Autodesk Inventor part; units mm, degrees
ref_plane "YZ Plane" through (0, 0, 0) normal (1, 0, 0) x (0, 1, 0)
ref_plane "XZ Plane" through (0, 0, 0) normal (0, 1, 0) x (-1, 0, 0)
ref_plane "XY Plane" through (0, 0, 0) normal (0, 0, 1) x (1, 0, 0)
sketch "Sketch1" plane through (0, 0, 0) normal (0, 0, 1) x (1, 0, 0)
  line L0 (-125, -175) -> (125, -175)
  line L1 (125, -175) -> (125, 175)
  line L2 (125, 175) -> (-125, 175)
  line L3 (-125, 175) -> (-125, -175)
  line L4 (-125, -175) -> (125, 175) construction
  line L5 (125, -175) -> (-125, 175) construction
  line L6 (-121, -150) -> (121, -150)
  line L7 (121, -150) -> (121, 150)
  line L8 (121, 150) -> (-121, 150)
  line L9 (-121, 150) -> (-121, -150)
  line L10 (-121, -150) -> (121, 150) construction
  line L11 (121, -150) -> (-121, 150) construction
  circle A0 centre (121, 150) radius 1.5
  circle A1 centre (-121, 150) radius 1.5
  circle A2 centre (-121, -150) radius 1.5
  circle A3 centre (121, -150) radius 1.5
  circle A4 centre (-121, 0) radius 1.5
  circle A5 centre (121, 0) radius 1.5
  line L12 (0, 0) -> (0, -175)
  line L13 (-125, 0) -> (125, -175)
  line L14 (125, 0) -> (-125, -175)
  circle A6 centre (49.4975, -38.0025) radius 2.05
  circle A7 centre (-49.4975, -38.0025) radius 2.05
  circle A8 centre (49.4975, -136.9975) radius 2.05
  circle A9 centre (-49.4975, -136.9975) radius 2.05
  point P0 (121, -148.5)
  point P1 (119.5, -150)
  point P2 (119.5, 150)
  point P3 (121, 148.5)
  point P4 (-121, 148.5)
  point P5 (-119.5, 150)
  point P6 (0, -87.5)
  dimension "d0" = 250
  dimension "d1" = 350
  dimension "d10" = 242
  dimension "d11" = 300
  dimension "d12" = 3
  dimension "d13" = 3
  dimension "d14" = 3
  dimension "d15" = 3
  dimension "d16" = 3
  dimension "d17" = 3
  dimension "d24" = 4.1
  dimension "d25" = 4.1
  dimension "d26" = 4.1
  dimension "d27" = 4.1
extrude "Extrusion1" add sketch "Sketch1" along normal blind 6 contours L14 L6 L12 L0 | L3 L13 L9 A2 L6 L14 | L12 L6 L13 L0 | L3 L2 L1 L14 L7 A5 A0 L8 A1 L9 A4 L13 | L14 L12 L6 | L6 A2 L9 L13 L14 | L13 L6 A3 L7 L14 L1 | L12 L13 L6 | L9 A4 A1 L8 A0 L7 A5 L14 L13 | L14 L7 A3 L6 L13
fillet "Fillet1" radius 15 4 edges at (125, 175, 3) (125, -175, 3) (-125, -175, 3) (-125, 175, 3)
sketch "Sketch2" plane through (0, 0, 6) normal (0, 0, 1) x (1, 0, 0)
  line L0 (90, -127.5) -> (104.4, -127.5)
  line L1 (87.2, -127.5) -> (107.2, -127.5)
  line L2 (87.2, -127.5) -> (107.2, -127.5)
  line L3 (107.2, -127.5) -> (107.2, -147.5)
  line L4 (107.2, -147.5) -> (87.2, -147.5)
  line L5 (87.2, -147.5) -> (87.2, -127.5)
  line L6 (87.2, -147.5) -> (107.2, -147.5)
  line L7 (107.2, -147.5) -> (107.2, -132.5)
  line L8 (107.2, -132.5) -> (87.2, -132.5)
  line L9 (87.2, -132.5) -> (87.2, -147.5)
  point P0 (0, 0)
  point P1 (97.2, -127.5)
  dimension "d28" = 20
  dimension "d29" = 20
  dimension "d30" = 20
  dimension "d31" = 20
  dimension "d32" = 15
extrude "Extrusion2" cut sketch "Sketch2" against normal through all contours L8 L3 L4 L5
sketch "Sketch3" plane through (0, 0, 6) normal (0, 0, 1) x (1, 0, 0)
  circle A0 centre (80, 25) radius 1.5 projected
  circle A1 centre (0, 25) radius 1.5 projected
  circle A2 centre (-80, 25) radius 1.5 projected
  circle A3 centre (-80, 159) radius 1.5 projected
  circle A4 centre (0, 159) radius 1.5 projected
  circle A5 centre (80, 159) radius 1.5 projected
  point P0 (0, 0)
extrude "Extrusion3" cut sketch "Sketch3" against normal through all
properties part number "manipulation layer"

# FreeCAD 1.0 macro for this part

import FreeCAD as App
import Part
import Sketcher

V = App.Vector
Q = App.Units.Quantity


def edges_at(feature, points):
    """Names of the edges that pass closest to the given points."""
    edges = feature.Shape.Edges
    near = lambda p: min(range(len(edges)), key=lambda i: edges[i].distToShape(Part.Vertex(*p))[0])
    return sorted({f"Edge{near(p) + 1}" for p in points})

doc = App.newDocument("Part")
body = doc.addObject("PartDesign::Body", "Body")

# Sketch on XY plane
sketch1 = body.newObject("Sketcher::SketchObject", "Sketch")
sketch1.AttachmentSupport = (doc.getObject("XY_Plane"), [""])
sketch1.MapMode = "FlatFace"
sketch1.addGeometry(Part.LineSegment(V(-125, -175, 0), V(125, -175, 0)), False)
sketch1.addGeometry(Part.LineSegment(V(125, -175, 0), V(125, 175, 0)), False)
sketch1.addGeometry(Part.LineSegment(V(125, 175, 0), V(-125, 175, 0)), False)
sketch1.addGeometry(Part.LineSegment(V(-125, 175, 0), V(-125, -175, 0)), False)
sketch1.addGeometry(Part.Circle(V(-121, -150, 0), V(0, 0, 1), 1.5), False)
sketch1.addGeometry(Part.Circle(V(-49.5, -137, 0), V(0, 0, 1), 2), False)
sketch1.addGeometry(Part.Circle(V(121, 0, 0), V(0, 0, 1), 1.5), False)
sketch1.addGeometry(Part.Circle(V(121, 150, 0), V(0, 0, 1), 1.5), False)
sketch1.addGeometry(Part.Circle(V(-121, 150, 0), V(0, 0, 1), 1.5), False)
sketch1.addGeometry(Part.Circle(V(-121, 0, 0), V(0, 0, 1), 1.5), False)
sketch1.addGeometry(Part.Circle(V(49.5, -137, 0), V(0, 0, 1), 2), False)
sketch1.addGeometry(Part.Circle(V(121, -150, 0), V(0, 0, 1), 1.5), False)
sketch1.addGeometry(Part.Circle(V(49.5, -38, 0), V(0, 0, 1), 2), False)
sketch1.addGeometry(Part.Circle(V(-49.5, -38, 0), V(0, 0, 1), 2), False)
sketch1.addConstraint(Sketcher.Constraint("Coincident", 0, 2, 1, 1))
sketch1.addConstraint(Sketcher.Constraint("Coincident", 1, 2, 2, 1))
sketch1.addConstraint(Sketcher.Constraint("Coincident", 2, 2, 3, 1))
sketch1.addConstraint(Sketcher.Constraint("Coincident", 3, 2, 0, 1))
sketch1.addConstraint(Sketcher.Constraint("Horizontal", 0))
sketch1.addConstraint(Sketcher.Constraint("Vertical", 1))
sketch1.addConstraint(Sketcher.Constraint("Horizontal", 2))
sketch1.addConstraint(Sketcher.Constraint("Vertical", 3))
sketch1.addConstraint(Sketcher.Constraint("Equal", 4, 6))
sketch1.addConstraint(Sketcher.Constraint("Equal", 6, 7))
sketch1.addConstraint(Sketcher.Constraint("Equal", 7, 8))
sketch1.addConstraint(Sketcher.Constraint("Equal", 8, 9))
sketch1.addConstraint(Sketcher.Constraint("Equal", 5, 10))
sketch1.addConstraint(Sketcher.Constraint("Equal", 9, 11))
sketch1.addConstraint(Sketcher.Constraint("Equal", 10, 12))
sketch1.addConstraint(Sketcher.Constraint("Equal", 12, 13))
sketch1.addConstraint(Sketcher.Constraint("Symmetric", 4, 3, 7, 3, -1, 1))
sketch1.addConstraint(Sketcher.Constraint("Symmetric", 6, 3, 9, 3, -1, 1))
sketch1.addConstraint(Sketcher.Constraint("Symmetric", 8, 3, 11, 3, -1, 1))
sketch1.addConstraint(Sketcher.Constraint("Symmetric", 0, 2, 2, 2, -1, 1))
sketch1.addConstraint(Sketcher.Constraint("Symmetric", 7, 3, 8, 3, -2))
sketch1.addConstraint(Sketcher.Constraint("Symmetric", 5, 3, 10, 3, -2))
sketch1.addConstraint(Sketcher.Constraint("Symmetric", 12, 3, 13, 3, -2))
sketch1.addConstraint(Sketcher.Constraint("PointOnObject", 6, 3, -1))
sketch1.addConstraint(Sketcher.Constraint("Vertical", 6, 3, 7, 3))
sketch1.addConstraint(Sketcher.Constraint("Vertical", 10, 3, 12, 3))
sketch1.addConstraint(Sketcher.Constraint("Diameter", 4, Q("3 mm")))
sketch1.addConstraint(Sketcher.Constraint("Diameter", 5, Q("4.1 mm")))
sketch1.addConstraint(Sketcher.Constraint("DistanceX", 0, 1, 0, 2, Q("250 mm")))
sketch1.addConstraint(Sketcher.Constraint("DistanceY", 1, 1, 1, 2, Q("350 mm")))
sketch1.addConstraint(Sketcher.Constraint("DistanceX", 4, 3, 6, 3, Q("242 mm")))
sketch1.addConstraint(Sketcher.Constraint("DistanceY", 4, 3, 7, 3, Q("300 mm")))
sketch1.addConstraint(Sketcher.Constraint("DistanceX", 5, 3, 10, 3, Q("98.995 mm")))
sketch1.addConstraint(Sketcher.Constraint("DistanceY", 10, 3, 12, 3, Q("98.995 mm")))
sketch1.addConstraint(Sketcher.Constraint("DistanceY", 5, 3, -1, 1, Q("136.9975 mm")))
pad1 = body.newObject("PartDesign::Pad", "Pad")
pad1.Profile = sketch1
pad1.Length = 6
doc.recompute()

fillet = body.newObject("PartDesign::Fillet", "Fillet")
fillet.Base = (pad1, edges_at(pad1, [
    (125, 175, 3),
    (125, -175, 3),
    (-125, -175, 3),
    (-125, 175, 3),
]))
fillet.Radius = 15

# Sketch on XY plane
sketch2 = body.newObject("Sketcher::SketchObject", "Sketch001")
sketch2.AttachmentSupport = (doc.getObject("XY_Plane"), [""])
sketch2.MapMode = "FlatFace"
sketch2.AttachmentOffset = App.Placement(V(0, 0, 6), App.Rotation())
sketch2.addGeometry(Part.LineSegment(V(107, -132, 0), V(87, -132, 0)), False)
sketch2.addGeometry(Part.LineSegment(V(87, -132, 0), V(87, -148, 0)), False)
sketch2.addGeometry(Part.LineSegment(V(87, -148, 0), V(107, -148, 0)), False)
sketch2.addGeometry(Part.LineSegment(V(107, -148, 0), V(107, -132, 0)), False)
sketch2.addConstraint(Sketcher.Constraint("Coincident", 0, 2, 1, 1))
sketch2.addConstraint(Sketcher.Constraint("Coincident", 1, 2, 2, 1))
sketch2.addConstraint(Sketcher.Constraint("Coincident", 2, 2, 3, 1))
sketch2.addConstraint(Sketcher.Constraint("Coincident", 3, 2, 0, 1))
sketch2.addConstraint(Sketcher.Constraint("Horizontal", 0))
sketch2.addConstraint(Sketcher.Constraint("Vertical", 1))
sketch2.addConstraint(Sketcher.Constraint("Horizontal", 2))
sketch2.addConstraint(Sketcher.Constraint("Vertical", 3))
sketch2.addConstraint(Sketcher.Constraint("DistanceX", 0, 2, 0, 1, Q("20 mm")))
sketch2.addConstraint(Sketcher.Constraint("DistanceY", 1, 2, 1, 1, Q("15 mm")))
sketch2.addConstraint(Sketcher.Constraint("DistanceX", -1, 1, 0, 2, Q("87.2 mm")))
sketch2.addConstraint(Sketcher.Constraint("DistanceY", 0, 2, -1, 1, Q("132.5 mm")))
pocket1 = body.newObject("PartDesign::Pocket", "Pocket")
pocket1.Profile = sketch2
pocket1.Type = "ThroughAll"

# Sketch on XY plane
sketch3 = body.newObject("Sketcher::SketchObject", "Sketch002")
sketch3.AttachmentSupport = (doc.getObject("XY_Plane"), [""])
sketch3.MapMode = "FlatFace"
sketch3.AttachmentOffset = App.Placement(V(0, 0, 6), App.Rotation())
sketch3.addGeometry(Part.Circle(V(80, 25, 0), V(0, 0, 1), 1.5), False)
sketch3.addGeometry(Part.Circle(V(0, 25, 0), V(0, 0, 1), 1.5), False)
sketch3.addGeometry(Part.Circle(V(-80, 25, 0), V(0, 0, 1), 1.5), False)
sketch3.addGeometry(Part.Circle(V(-80, 159, 0), V(0, 0, 1), 1.5), False)
sketch3.addGeometry(Part.Circle(V(0, 159, 0), V(0, 0, 1), 1.5), False)
sketch3.addGeometry(Part.Circle(V(80, 159, 0), V(0, 0, 1), 1.5), False)
sketch3.addConstraint(Sketcher.Constraint("Equal", 0, 1))
sketch3.addConstraint(Sketcher.Constraint("Equal", 1, 2))
sketch3.addConstraint(Sketcher.Constraint("Equal", 2, 3))
sketch3.addConstraint(Sketcher.Constraint("Equal", 3, 4))
sketch3.addConstraint(Sketcher.Constraint("Equal", 4, 5))
sketch3.addConstraint(Sketcher.Constraint("Symmetric", 0, 3, 2, 3, -2))
sketch3.addConstraint(Sketcher.Constraint("Symmetric", 3, 3, 5, 3, -2))
sketch3.addConstraint(Sketcher.Constraint("PointOnObject", 1, 3, -2))
sketch3.addConstraint(Sketcher.Constraint("PointOnObject", 4, 3, -2))
sketch3.addConstraint(Sketcher.Constraint("Horizontal", 0, 3, 1, 3))
sketch3.addConstraint(Sketcher.Constraint("Horizontal", 3, 3, 4, 3))
sketch3.addConstraint(Sketcher.Constraint("Vertical", 2, 3, 3, 3))
sketch3.addConstraint(Sketcher.Constraint("Diameter", 0, Q("3 mm")))
sketch3.addConstraint(Sketcher.Constraint("DistanceX", -1, 1, 0, 3, Q("80 mm")))
sketch3.addConstraint(Sketcher.Constraint("DistanceY", -1, 1, 0, 3, Q("25 mm")))
sketch3.addConstraint(Sketcher.Constraint("DistanceY", -1, 1, 3, 3, Q("159 mm")))
pocket2 = body.newObject("PartDesign::Pocket", "Pocket001")
pocket2.Profile = sketch3
pocket2.Type = "ThroughAll"

doc.recompute()
